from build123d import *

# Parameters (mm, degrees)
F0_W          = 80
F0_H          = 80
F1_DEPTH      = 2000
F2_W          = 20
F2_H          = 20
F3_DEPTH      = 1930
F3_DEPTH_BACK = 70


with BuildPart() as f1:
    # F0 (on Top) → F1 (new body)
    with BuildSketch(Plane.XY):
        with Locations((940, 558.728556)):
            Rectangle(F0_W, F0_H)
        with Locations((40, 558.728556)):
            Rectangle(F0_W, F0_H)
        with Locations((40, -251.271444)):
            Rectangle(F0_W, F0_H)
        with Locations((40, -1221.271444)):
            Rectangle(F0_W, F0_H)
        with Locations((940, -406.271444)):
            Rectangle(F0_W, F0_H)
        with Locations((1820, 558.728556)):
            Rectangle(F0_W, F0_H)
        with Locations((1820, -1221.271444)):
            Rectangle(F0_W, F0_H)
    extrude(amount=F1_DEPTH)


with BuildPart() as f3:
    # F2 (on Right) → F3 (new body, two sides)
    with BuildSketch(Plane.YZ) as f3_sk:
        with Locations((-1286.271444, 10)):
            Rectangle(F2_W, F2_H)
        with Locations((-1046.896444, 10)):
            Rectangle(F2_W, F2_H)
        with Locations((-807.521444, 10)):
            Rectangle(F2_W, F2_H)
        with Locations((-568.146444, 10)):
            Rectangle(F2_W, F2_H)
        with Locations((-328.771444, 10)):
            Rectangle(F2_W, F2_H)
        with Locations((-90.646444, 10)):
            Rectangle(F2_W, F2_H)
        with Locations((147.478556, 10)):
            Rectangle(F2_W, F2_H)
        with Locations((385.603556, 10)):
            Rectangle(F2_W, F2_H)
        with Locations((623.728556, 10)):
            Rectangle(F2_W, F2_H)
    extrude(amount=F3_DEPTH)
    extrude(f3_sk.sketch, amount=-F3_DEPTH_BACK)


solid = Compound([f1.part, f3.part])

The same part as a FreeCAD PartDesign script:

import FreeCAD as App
import Part
import Sketcher

doc = App.newDocument("Part")
body = doc.addObject("PartDesign::Body", "Body")
body.AllowCompound = True

sketch1 = doc.addObject("Sketcher::SketchObject", "Sketch")
body.addObject(sketch1)
sketch1.AttachmentSupport = (doc.XY_Plane, [""])
sketch1.MapMode = "FlatFace"
sketch1.addGeometry([
    Part.LineSegment(App.Vector(900, 599, 0), App.Vector(900, 519, 0)),
    Part.LineSegment(App.Vector(900, 519, 0), App.Vector(980, 519, 0)),
    Part.LineSegment(App.Vector(980, 519, 0), App.Vector(980, 599, 0)),
    Part.LineSegment(App.Vector(980, 599, 0), App.Vector(900, 599, 0)),
    Part.LineSegment(App.Vector(0, 599, 0), App.Vector(0, 519, 0)),
    Part.LineSegment(App.Vector(0, 519, 0), App.Vector(80, 519, 0)),
    Part.LineSegment(App.Vector(80, 519, 0), App.Vector(80, 599, 0)),
    Part.LineSegment(App.Vector(80, 599, 0), App.Vector(0, 599, 0)),
    Part.LineSegment(App.Vector(0, -211, 0), App.Vector(0, -291, 0)),
    Part.LineSegment(App.Vector(0, -291, 0), App.Vector(80, -291, 0)),
    Part.LineSegment(App.Vector(80, -291, 0), App.Vector(80, -211, 0)),
    Part.LineSegment(App.Vector(80, -211, 0), App.Vector(0, -211, 0)),
    Part.LineSegment(App.Vector(0, -1181, 0), App.Vector(0, -1261, 0)),
    Part.LineSegment(App.Vector(0, -1261, 0), App.Vector(80, -1261, 0)),
    Part.LineSegment(App.Vector(80, -1261, 0), App.Vector(80, -1181, 0)),
    Part.LineSegment(App.Vector(80, -1181, 0), App.Vector(0, -1181, 0)),
    Part.LineSegment(App.Vector(900, -366, 0), App.Vector(900, -446, 0)),
    Part.LineSegment(App.Vector(900, -446, 0), App.Vector(980, -446, 0)),
    Part.LineSegment(App.Vector(980, -446, 0), App.Vector(980, -366, 0)),
    Part.LineSegment(App.Vector(980, -366, 0), App.Vector(900, -366, 0)),
    Part.LineSegment(App.Vector(1780, 599, 0), App.Vector(1780, 519, 0)),
    Part.LineSegment(App.Vector(1780, 519, 0), App.Vector(1860, 519, 0)),
    Part.LineSegment(App.Vector(1860, 519, 0), App.Vector(1860, 599, 0)),
    Part.LineSegment(App.Vector(1860, 599, 0), App.Vector(1780, 599, 0)),
    Part.LineSegment(App.Vector(1780, -1181, 0), App.Vector(1780, -1261, 0)),
    Part.LineSegment(App.Vector(1780, -1261, 0), App.Vector(1860, -1261, 0)),
    Part.LineSegment(App.Vector(1860, -1261, 0), App.Vector(1860, -1181, 0)),
    Part.LineSegment(App.Vector(1860, -1181, 0), App.Vector(1780, -1181, 0)),
], False)
sketch1.addConstraint([
    Sketcher.Constraint("Coincident", 0, 2, 1, 1),
    Sketcher.Constraint("Coincident", 1, 2, 2, 1),
    Sketcher.Constraint("Coincident", 2, 2, 3, 1),
    Sketcher.Constraint("Coincident", 3, 2, 0, 1),
    Sketcher.Constraint("Coincident", 4, 2, 5, 1),
    Sketcher.Constraint("Coincident", 5, 2, 6, 1),
    Sketcher.Constraint("Coincident", 6, 2, 7, 1),
    Sketcher.Constraint("Coincident", 7, 2, 4, 1),
    Sketcher.Constraint("Coincident", 8, 2, 9, 1),
    Sketcher.Constraint("Coincident", 9, 2, 10, 1),
    Sketcher.Constraint("Coincident", 10, 2, 11, 1),
    Sketcher.Constraint("Coincident", 11, 2, 8, 1),
    Sketcher.Constraint("Coincident", 12, 2, 13, 1),
    Sketcher.Constraint("Coincident", 13, 2, 14, 1),
    Sketcher.Constraint("Coincident", 14, 2, 15, 1),
    Sketcher.Constraint("Coincident", 15, 2, 12, 1),
    Sketcher.Constraint("Coincident", 16, 2, 17, 1),
    Sketcher.Constraint("Coincident", 17, 2, 18, 1),
    Sketcher.Constraint("Coincident", 18, 2, 19, 1),
    Sketcher.Constraint("Coincident", 19, 2, 16, 1),
    Sketcher.Constraint("Coincident", 20, 2, 21, 1),
    Sketcher.Constraint("Coincident", 21, 2, 22, 1),
    Sketcher.Constraint("Coincident", 22, 2, 23, 1),
    Sketcher.Constraint("Coincident", 23, 2, 20, 1),
    Sketcher.Constraint("Coincident", 24, 2, 25, 1),
    Sketcher.Constraint("Coincident", 25, 2, 26, 1),
    Sketcher.Constraint("Coincident", 26, 2, 27, 1),
    Sketcher.Constraint("Coincident", 27, 2, 24, 1),
    Sketcher.Constraint("Vertical", 0),
    Sketcher.Constraint("Horizontal", 1),
    Sketcher.Constraint("Vertical", 2),
    Sketcher.Constraint("Horizontal", 3),
    Sketcher.Constraint("Vertical", 4),
    Sketcher.Constraint("Horizontal", 5),
    Sketcher.Constraint("Vertical", 6),
    Sketcher.Constraint("Horizontal", 7),
    Sketcher.Constraint("Vertical", 8),
    Sketcher.Constraint("Horizontal", 9),
    Sketcher.Constraint("Vertical", 10),
    Sketcher.Constraint("Horizontal", 11),
    Sketcher.Constraint("Vertical", 12),
    Sketcher.Constraint("Horizontal", 13),
    Sketcher.Constraint("Vertical", 14),
    Sketcher.Constraint("Horizontal", 15),
    Sketcher.Constraint("Vertical", 16),
    Sketcher.Constraint("Horizontal", 17),
    Sketcher.Constraint("Vertical", 18),
    Sketcher.Constraint("Horizontal", 19),
    Sketcher.Constraint("Vertical", 20),
    Sketcher.Constraint("Horizontal", 21),
    Sketcher.Constraint("Vertical", 22),
    Sketcher.Constraint("Horizontal", 23),
    Sketcher.Constraint("Vertical", 24),
    Sketcher.Constraint("Horizontal", 25),
    Sketcher.Constraint("Vertical", 26),
    Sketcher.Constraint("Horizontal", 27),
    Sketcher.Constraint("PointOnObject", 4, 2, -2),
    Sketcher.Constraint("PointOnObject", 8, 2, -2),
    Sketcher.Constraint("PointOnObject", 12, 2, -2),
    Sketcher.Constraint("Horizontal", 1, 2, 4, 2),
    Sketcher.Constraint("Horizontal", 3, 2, 6, 2),
    Sketcher.Constraint("Horizontal", 5, 2, 20, 2),
    Sketcher.Constraint("Horizontal", 7, 2, 22, 2),
    Sketcher.Constraint("Horizontal", 13, 2, 24, 2),
    Sketcher.Constraint("Horizontal", 15, 2, 26, 2),
    Sketcher.Constraint("Vertical", 6, 2, 9, 2),
    Sketcher.Constraint("Vertical", 10, 2, 13, 2),
    Sketcher.Constraint("Vertical", 3, 2, 16, 2),
    Sketcher.Constraint("Vertical", 2, 2, 17, 2),
    Sketcher.Constraint("Vertical", 23, 2, 24, 2),
    Sketcher.Constraint("Vertical", 22, 2, 25, 2),
    Sketcher.Constraint("Equal", 3, 5),
    Sketcher.Constraint("Equal", 19, 21),
    Sketcher.Constraint("Equal", 27, 0),
    Sketcher.Constraint("Equal", 6, 8),
    Sketcher.Constraint("Equal", 10, 12),
    Sketcher.Constraint("Equal", 14, 16),
    Sketcher.Constraint("DistanceX", 1, 1, 1, 2, 80.0),
    Sketcher.Constraint("DistanceX", -1, 1, 0, 2, 900.0),
    Sketcher.Constraint("DistanceX", -1, 1, 20, 2, 1780.0),
    Sketcher.Constraint("DistanceY", 8, 2, 4, 2, 810.0),
    Sketcher.Constraint("DistanceY", 12, 2, 8, 2, 970.0),
    Sketcher.Constraint("DistanceY", 16, 2, 9, 2, 155.0),
    Sketcher.Constraint("DistanceY", -1, 1, 0, 2, 518.728556),
])
pad1 = doc.addObject("PartDesign::Pad", "Pad")
body.addObject(pad1)
pad1.Profile = sketch1
pad1.Length = 2000
body2 = doc.addObject("PartDesign::Body", "Body001")
body2.AllowCompound = True

sketch2 = doc.addObject("Sketcher::SketchObject", "Sketch001")
body2.addObject(sketch2)
sketch2.AttachmentSupport = (doc.getObject("YZ_Plane001"), [""])
sketch2.MapMode = "FlatFace"
sketch2.addGeometry([
    Part.LineSegment(App.Vector(-1296, 20, 0), App.Vector(-1296, 0, 0)),
    Part.LineSegment(App.Vector(-1296, 0, 0), App.Vector(-1276, 0, 0)),
    Part.LineSegment(App.Vector(-1276, 0, 0), App.Vector(-1276, 20, 0)),
    Part.LineSegment(App.Vector(-1276, 20, 0), App.Vector(-1296, 20, 0)),
    Part.LineSegment(App.Vector(-1057, 20, 0), App.Vector(-1057, 0, 0)),
    Part.LineSegment(App.Vector(-1057, 0, 0), App.Vector(-1037, 0, 0)),
    Part.LineSegment(App.Vector(-1037, 0, 0), App.Vector(-1037, 20, 0)),
    Part.LineSegment(App.Vector(-1037, 20, 0), App.Vector(-1057, 20, 0)),
    Part.LineSegment(App.Vector(-818, 20, 0), App.Vector(-818, 0, 0)),
    Part.LineSegment(App.Vector(-818, 0, 0), App.Vector(-798, 0, 0)),
    Part.LineSegment(App.Vector(-798, 0, 0), App.Vector(-798, 20, 0)),
    Part.LineSegment(App.Vector(-798, 20, 0), App.Vector(-818, 20, 0)),
    Part.LineSegment(App.Vector(-578, 20, 0), App.Vector(-578, 0, 0)),
    Part.LineSegment(App.Vector(-578, 0, 0), App.Vector(-558, 0, 0)),
    Part.LineSegment(App.Vector(-558, 0, 0), App.Vector(-558, 20, 0)),
    Part.LineSegment(App.Vector(-558, 20, 0), App.Vector(-578, 20, 0)),
    Part.LineSegment(App.Vector(-339, 20, 0), App.Vector(-339, 0, 0)),
    Part.LineSegment(App.Vector(-339, 0, 0), App.Vector(-319, 0, 0)),
    Part.LineSegment(App.Vector(-319, 0, 0), App.Vector(-319, 20, 0)),
    Part.LineSegment(App.Vector(-319, 20, 0), App.Vector(-339, 20, 0)),
    Part.LineSegment(App.Vector(-101, 20, 0), App.Vector(-101, 0, 0)),
    Part.LineSegment(App.Vector(-101, 0, 0), App.Vector(-81, 0, 0)),
    Part.LineSegment(App.Vector(-81, 0, 0), App.Vector(-81, 20, 0)),
    Part.LineSegment(App.Vector(-81, 20, 0), App.Vector(-101, 20, 0)),
    Part.LineSegment(App.Vector(137, 20, 0), App.Vector(137, 0, 0)),
    Part.LineSegment(App.Vector(137, 0, 0), App.Vector(157, 0, 0)),
    Part.LineSegment(App.Vector(157, 0, 0), App.Vector(157, 20, 0)),
    Part.LineSegment(App.Vector(157, 20, 0), App.Vector(137, 20, 0)),
    Part.LineSegment(App.Vector(376, 20, 0), App.Vector(376, 0, 0)),
    Part.LineSegment(App.Vector(376, 0, 0), App.Vector(396, 0, 0)),
    Part.LineSegment(App.Vector(396, 0, 0), App.Vector(396, 20, 0)),
    Part.LineSegment(App.Vector(396, 20, 0), App.Vector(376, 20, 0)),
    Part.LineSegment(App.Vector(614, 20, 0), App.Vector(614, 0, 0)),
    Part.LineSegment(App.Vector(614, 0, 0), App.Vector(634, 0, 0)),
    Part.LineSegment(App.Vector(634, 0, 0), App.Vector(634, 20, 0)),
    Part.LineSegment(App.Vector(634, 20, 0), App.Vector(614, 20, 0)),
], False)
sketch2.addConstraint([
    Sketcher.Constraint("Coincident", 0, 2, 1, 1),
    Sketcher.Constraint("Coincident", 1, 2, 2, 1),
    Sketcher.Constraint("Coincident", 2, 2, 3, 1),
    Sketcher.Constraint("Coincident", 3, 2, 0, 1),
    Sketcher.Constraint("Coincident", 4, 2, 5, 1),
    Sketcher.Constraint("Coincident", 5, 2, 6, 1),
    Sketcher.Constraint("Coincident", 6, 2, 7, 1),
    Sketcher.Constraint("Coincident", 7, 2, 4, 1),
    Sketcher.Constraint("Coincident", 8, 2, 9, 1),
    Sketcher.Constraint("Coincident", 9, 2, 10, 1),
    Sketcher.Constraint("Coincident", 10, 2, 11, 1),
    Sketcher.Constraint("Coincident", 11, 2, 8, 1),
    Sketcher.Constraint("Coincident", 12, 2, 13, 1),
    Sketcher.Constraint("Coincident", 13, 2, 14, 1),
    Sketcher.Constraint("Coincident", 14, 2, 15, 1),
    Sketcher.Constraint("Coincident", 15, 2, 12, 1),
    Sketcher.Constraint("Coincident", 16, 2, 17, 1),
    Sketcher.Constraint("Coincident", 17, 2, 18, 1),
    Sketcher.Constraint("Coincident", 18, 2, 19, 1),
    Sketcher.Constraint("Coincident", 19, 2, 16, 1),
    Sketcher.Constraint("Coincident", 20, 2, 21, 1),
    Sketcher.Constraint("Coincident", 21, 2, 22, 1),
    Sketcher.Constraint("Coincident", 22, 2, 23, 1),
    Sketcher.Constraint("Coincident", 23, 2, 20, 1),
    Sketcher.Constraint("Coincident", 24, 2, 25, 1),
    Sketcher.Constraint("Coincident", 25, 2, 26, 1),
    Sketcher.Constraint("Coincident", 26, 2, 27, 1),
    Sketcher.Constraint("Coincident", 27, 2, 24, 1),
    Sketcher.Constraint("Coincident", 28, 2, 29, 1),
    Sketcher.Constraint("Coincident", 29, 2, 30, 1),
    Sketcher.Constraint("Coincident", 30, 2, 31, 1),
    Sketcher.Constraint("Coincident", 31, 2, 28, 1),
    Sketcher.Constraint("Coincident", 32, 2, 33, 1),
    Sketcher.Constraint("Coincident", 33, 2, 34, 1),
    Sketcher.Constraint("Coincident", 34, 2, 35, 1),
    Sketcher.Constraint("Coincident", 35, 2, 32, 1),
    Sketcher.Constraint("Vertical", 0),
    Sketcher.Constraint("Horizontal", 1),
    Sketcher.Constraint("Vertical", 2),
    Sketcher.Constraint("Horizontal", 3),
    Sketcher.Constraint("Vertical", 4),
    Sketcher.Constraint("Horizontal", 5),
    Sketcher.Constraint("Vertical", 6),
    Sketcher.Constraint("Horizontal", 7),
    Sketcher.Constraint("Vertical", 8),
    Sketcher.Constraint("Horizontal", 9),
    Sketcher.Constraint("Vertical", 10),
    Sketcher.Constraint("Horizontal", 11),
    Sketcher.Constraint("Vertical", 12),
    Sketcher.Constraint("Horizontal", 13),
    Sketcher.Constraint("Vertical", 14),
    Sketcher.Constraint("Horizontal", 15),
    Sketcher.Constraint("Vertical", 16),
    Sketcher.Constraint("Horizontal", 17),
    Sketcher.Constraint("Vertical", 18),
    Sketcher.Constraint("Horizontal", 19),
    Sketcher.Constraint("Vertical", 20),
    Sketcher.Constraint("Horizontal", 21),
    Sketcher.Constraint("Vertical", 22),
    Sketcher.Constraint("Horizontal", 23),
    Sketcher.Constraint("Vertical", 24),
    Sketcher.Constraint("Horizontal", 25),
    Sketcher.Constraint("Vertical", 26),
    Sketcher.Constraint("Horizontal", 27),
    Sketcher.Constraint("Vertical", 28),
    Sketcher.Constraint("Horizontal", 29),
    Sketcher.Constraint("Vertical", 30),
    Sketcher.Constraint("Horizontal", 31),
    Sketcher.Constraint("Vertical", 32),
    Sketcher.Constraint("Horizontal", 33),
    Sketcher.Constraint("Vertical", 34),
    Sketcher.Constraint("Horizontal", 35),
    Sketcher.Constraint("PointOnObject", 0, 2, -1),
    Sketcher.Constraint("PointOnObject", 4, 2, -1),
    Sketcher.Constraint("PointOnObject", 8, 2, -1),
    Sketcher.Constraint("PointOnObject", 12, 2, -1),
    Sketcher.Constraint("PointOnObject", 16, 2, -1),
    Sketcher.Constraint("PointOnObject", 20, 2, -1),
    Sketcher.Constraint("PointOnObject", 24, 2, -1),
    Sketcher.Constraint("PointOnObject", 28, 2, -1),
    Sketcher.Constraint("PointOnObject", 32, 2, -1),
    Sketcher.Constraint("Horizontal", 3, 2, 6, 2),
    Sketcher.Constraint("Horizontal", 7, 2, 10, 2),
    Sketcher.Constraint("Horizontal", 11, 2, 14, 2),
    Sketcher.Constraint("Horizontal", 15, 2, 18, 2),
    Sketcher.Constraint("Horizontal", 19, 2, 22, 2),
    Sketcher.Constraint("Horizontal", 23, 2, 26, 2),
    Sketcher.Constraint("Horizontal", 27, 2, 30, 2),
    Sketcher.Constraint("Horizontal", 31, 2, 34, 2),
    Sketcher.Constraint("Equal", 3, 5),
    Sketcher.Constraint("Equal", 7, 9),
    Sketcher.Constraint("Equal", 11, 13),
    Sketcher.Constraint("Equal", 15, 17),
    Sketcher.Constraint("Equal", 19, 21),
    Sketcher.Constraint("Equal", 23, 25),
    Sketcher.Constraint("Equal", 27, 29),
    Sketcher.Constraint("Equal", 31, 33),
    Sketcher.Constraint("Equal", 35, 0),
    Sketcher.Constraint("DistanceX", 1, 1, 1, 2, 20.0),
    Sketcher.Constraint("DistanceX", 13, 2, 20, 2, 457.5),
    Sketcher.Constraint("DistanceX", 1, 2, 8, 2, 458.75),
    Sketcher.Constraint("DistanceX", 5, 2, 12, 2, 458.75),
    Sketcher.Constraint("DistanceX", 9, 2, 16, 2, 458.75),
    Sketcher.Constraint("DistanceX", 17, 2, 24, 2, 456.25),
    Sketcher.Constraint("DistanceX", 21, 2, 28, 2, 456.25),
    Sketcher.Constraint("DistanceX", 25, 2, 32, 2, 456.25),
    Sketcher.Constraint("DistanceX", 1, 2, 4, 2, 219.375),
    Sketcher.Constraint("DistanceX", 0, 2, -1, 1, 1296.271444),
])
pad2 = doc.addObject("PartDesign::Pad", "Pad001")
body2.addObject(pad2)
pad2.Profile = sketch2
pad2.Type = "TwoLengths"
pad2.Length = 1930
pad2.Length2 = 70

doc.recompute()
